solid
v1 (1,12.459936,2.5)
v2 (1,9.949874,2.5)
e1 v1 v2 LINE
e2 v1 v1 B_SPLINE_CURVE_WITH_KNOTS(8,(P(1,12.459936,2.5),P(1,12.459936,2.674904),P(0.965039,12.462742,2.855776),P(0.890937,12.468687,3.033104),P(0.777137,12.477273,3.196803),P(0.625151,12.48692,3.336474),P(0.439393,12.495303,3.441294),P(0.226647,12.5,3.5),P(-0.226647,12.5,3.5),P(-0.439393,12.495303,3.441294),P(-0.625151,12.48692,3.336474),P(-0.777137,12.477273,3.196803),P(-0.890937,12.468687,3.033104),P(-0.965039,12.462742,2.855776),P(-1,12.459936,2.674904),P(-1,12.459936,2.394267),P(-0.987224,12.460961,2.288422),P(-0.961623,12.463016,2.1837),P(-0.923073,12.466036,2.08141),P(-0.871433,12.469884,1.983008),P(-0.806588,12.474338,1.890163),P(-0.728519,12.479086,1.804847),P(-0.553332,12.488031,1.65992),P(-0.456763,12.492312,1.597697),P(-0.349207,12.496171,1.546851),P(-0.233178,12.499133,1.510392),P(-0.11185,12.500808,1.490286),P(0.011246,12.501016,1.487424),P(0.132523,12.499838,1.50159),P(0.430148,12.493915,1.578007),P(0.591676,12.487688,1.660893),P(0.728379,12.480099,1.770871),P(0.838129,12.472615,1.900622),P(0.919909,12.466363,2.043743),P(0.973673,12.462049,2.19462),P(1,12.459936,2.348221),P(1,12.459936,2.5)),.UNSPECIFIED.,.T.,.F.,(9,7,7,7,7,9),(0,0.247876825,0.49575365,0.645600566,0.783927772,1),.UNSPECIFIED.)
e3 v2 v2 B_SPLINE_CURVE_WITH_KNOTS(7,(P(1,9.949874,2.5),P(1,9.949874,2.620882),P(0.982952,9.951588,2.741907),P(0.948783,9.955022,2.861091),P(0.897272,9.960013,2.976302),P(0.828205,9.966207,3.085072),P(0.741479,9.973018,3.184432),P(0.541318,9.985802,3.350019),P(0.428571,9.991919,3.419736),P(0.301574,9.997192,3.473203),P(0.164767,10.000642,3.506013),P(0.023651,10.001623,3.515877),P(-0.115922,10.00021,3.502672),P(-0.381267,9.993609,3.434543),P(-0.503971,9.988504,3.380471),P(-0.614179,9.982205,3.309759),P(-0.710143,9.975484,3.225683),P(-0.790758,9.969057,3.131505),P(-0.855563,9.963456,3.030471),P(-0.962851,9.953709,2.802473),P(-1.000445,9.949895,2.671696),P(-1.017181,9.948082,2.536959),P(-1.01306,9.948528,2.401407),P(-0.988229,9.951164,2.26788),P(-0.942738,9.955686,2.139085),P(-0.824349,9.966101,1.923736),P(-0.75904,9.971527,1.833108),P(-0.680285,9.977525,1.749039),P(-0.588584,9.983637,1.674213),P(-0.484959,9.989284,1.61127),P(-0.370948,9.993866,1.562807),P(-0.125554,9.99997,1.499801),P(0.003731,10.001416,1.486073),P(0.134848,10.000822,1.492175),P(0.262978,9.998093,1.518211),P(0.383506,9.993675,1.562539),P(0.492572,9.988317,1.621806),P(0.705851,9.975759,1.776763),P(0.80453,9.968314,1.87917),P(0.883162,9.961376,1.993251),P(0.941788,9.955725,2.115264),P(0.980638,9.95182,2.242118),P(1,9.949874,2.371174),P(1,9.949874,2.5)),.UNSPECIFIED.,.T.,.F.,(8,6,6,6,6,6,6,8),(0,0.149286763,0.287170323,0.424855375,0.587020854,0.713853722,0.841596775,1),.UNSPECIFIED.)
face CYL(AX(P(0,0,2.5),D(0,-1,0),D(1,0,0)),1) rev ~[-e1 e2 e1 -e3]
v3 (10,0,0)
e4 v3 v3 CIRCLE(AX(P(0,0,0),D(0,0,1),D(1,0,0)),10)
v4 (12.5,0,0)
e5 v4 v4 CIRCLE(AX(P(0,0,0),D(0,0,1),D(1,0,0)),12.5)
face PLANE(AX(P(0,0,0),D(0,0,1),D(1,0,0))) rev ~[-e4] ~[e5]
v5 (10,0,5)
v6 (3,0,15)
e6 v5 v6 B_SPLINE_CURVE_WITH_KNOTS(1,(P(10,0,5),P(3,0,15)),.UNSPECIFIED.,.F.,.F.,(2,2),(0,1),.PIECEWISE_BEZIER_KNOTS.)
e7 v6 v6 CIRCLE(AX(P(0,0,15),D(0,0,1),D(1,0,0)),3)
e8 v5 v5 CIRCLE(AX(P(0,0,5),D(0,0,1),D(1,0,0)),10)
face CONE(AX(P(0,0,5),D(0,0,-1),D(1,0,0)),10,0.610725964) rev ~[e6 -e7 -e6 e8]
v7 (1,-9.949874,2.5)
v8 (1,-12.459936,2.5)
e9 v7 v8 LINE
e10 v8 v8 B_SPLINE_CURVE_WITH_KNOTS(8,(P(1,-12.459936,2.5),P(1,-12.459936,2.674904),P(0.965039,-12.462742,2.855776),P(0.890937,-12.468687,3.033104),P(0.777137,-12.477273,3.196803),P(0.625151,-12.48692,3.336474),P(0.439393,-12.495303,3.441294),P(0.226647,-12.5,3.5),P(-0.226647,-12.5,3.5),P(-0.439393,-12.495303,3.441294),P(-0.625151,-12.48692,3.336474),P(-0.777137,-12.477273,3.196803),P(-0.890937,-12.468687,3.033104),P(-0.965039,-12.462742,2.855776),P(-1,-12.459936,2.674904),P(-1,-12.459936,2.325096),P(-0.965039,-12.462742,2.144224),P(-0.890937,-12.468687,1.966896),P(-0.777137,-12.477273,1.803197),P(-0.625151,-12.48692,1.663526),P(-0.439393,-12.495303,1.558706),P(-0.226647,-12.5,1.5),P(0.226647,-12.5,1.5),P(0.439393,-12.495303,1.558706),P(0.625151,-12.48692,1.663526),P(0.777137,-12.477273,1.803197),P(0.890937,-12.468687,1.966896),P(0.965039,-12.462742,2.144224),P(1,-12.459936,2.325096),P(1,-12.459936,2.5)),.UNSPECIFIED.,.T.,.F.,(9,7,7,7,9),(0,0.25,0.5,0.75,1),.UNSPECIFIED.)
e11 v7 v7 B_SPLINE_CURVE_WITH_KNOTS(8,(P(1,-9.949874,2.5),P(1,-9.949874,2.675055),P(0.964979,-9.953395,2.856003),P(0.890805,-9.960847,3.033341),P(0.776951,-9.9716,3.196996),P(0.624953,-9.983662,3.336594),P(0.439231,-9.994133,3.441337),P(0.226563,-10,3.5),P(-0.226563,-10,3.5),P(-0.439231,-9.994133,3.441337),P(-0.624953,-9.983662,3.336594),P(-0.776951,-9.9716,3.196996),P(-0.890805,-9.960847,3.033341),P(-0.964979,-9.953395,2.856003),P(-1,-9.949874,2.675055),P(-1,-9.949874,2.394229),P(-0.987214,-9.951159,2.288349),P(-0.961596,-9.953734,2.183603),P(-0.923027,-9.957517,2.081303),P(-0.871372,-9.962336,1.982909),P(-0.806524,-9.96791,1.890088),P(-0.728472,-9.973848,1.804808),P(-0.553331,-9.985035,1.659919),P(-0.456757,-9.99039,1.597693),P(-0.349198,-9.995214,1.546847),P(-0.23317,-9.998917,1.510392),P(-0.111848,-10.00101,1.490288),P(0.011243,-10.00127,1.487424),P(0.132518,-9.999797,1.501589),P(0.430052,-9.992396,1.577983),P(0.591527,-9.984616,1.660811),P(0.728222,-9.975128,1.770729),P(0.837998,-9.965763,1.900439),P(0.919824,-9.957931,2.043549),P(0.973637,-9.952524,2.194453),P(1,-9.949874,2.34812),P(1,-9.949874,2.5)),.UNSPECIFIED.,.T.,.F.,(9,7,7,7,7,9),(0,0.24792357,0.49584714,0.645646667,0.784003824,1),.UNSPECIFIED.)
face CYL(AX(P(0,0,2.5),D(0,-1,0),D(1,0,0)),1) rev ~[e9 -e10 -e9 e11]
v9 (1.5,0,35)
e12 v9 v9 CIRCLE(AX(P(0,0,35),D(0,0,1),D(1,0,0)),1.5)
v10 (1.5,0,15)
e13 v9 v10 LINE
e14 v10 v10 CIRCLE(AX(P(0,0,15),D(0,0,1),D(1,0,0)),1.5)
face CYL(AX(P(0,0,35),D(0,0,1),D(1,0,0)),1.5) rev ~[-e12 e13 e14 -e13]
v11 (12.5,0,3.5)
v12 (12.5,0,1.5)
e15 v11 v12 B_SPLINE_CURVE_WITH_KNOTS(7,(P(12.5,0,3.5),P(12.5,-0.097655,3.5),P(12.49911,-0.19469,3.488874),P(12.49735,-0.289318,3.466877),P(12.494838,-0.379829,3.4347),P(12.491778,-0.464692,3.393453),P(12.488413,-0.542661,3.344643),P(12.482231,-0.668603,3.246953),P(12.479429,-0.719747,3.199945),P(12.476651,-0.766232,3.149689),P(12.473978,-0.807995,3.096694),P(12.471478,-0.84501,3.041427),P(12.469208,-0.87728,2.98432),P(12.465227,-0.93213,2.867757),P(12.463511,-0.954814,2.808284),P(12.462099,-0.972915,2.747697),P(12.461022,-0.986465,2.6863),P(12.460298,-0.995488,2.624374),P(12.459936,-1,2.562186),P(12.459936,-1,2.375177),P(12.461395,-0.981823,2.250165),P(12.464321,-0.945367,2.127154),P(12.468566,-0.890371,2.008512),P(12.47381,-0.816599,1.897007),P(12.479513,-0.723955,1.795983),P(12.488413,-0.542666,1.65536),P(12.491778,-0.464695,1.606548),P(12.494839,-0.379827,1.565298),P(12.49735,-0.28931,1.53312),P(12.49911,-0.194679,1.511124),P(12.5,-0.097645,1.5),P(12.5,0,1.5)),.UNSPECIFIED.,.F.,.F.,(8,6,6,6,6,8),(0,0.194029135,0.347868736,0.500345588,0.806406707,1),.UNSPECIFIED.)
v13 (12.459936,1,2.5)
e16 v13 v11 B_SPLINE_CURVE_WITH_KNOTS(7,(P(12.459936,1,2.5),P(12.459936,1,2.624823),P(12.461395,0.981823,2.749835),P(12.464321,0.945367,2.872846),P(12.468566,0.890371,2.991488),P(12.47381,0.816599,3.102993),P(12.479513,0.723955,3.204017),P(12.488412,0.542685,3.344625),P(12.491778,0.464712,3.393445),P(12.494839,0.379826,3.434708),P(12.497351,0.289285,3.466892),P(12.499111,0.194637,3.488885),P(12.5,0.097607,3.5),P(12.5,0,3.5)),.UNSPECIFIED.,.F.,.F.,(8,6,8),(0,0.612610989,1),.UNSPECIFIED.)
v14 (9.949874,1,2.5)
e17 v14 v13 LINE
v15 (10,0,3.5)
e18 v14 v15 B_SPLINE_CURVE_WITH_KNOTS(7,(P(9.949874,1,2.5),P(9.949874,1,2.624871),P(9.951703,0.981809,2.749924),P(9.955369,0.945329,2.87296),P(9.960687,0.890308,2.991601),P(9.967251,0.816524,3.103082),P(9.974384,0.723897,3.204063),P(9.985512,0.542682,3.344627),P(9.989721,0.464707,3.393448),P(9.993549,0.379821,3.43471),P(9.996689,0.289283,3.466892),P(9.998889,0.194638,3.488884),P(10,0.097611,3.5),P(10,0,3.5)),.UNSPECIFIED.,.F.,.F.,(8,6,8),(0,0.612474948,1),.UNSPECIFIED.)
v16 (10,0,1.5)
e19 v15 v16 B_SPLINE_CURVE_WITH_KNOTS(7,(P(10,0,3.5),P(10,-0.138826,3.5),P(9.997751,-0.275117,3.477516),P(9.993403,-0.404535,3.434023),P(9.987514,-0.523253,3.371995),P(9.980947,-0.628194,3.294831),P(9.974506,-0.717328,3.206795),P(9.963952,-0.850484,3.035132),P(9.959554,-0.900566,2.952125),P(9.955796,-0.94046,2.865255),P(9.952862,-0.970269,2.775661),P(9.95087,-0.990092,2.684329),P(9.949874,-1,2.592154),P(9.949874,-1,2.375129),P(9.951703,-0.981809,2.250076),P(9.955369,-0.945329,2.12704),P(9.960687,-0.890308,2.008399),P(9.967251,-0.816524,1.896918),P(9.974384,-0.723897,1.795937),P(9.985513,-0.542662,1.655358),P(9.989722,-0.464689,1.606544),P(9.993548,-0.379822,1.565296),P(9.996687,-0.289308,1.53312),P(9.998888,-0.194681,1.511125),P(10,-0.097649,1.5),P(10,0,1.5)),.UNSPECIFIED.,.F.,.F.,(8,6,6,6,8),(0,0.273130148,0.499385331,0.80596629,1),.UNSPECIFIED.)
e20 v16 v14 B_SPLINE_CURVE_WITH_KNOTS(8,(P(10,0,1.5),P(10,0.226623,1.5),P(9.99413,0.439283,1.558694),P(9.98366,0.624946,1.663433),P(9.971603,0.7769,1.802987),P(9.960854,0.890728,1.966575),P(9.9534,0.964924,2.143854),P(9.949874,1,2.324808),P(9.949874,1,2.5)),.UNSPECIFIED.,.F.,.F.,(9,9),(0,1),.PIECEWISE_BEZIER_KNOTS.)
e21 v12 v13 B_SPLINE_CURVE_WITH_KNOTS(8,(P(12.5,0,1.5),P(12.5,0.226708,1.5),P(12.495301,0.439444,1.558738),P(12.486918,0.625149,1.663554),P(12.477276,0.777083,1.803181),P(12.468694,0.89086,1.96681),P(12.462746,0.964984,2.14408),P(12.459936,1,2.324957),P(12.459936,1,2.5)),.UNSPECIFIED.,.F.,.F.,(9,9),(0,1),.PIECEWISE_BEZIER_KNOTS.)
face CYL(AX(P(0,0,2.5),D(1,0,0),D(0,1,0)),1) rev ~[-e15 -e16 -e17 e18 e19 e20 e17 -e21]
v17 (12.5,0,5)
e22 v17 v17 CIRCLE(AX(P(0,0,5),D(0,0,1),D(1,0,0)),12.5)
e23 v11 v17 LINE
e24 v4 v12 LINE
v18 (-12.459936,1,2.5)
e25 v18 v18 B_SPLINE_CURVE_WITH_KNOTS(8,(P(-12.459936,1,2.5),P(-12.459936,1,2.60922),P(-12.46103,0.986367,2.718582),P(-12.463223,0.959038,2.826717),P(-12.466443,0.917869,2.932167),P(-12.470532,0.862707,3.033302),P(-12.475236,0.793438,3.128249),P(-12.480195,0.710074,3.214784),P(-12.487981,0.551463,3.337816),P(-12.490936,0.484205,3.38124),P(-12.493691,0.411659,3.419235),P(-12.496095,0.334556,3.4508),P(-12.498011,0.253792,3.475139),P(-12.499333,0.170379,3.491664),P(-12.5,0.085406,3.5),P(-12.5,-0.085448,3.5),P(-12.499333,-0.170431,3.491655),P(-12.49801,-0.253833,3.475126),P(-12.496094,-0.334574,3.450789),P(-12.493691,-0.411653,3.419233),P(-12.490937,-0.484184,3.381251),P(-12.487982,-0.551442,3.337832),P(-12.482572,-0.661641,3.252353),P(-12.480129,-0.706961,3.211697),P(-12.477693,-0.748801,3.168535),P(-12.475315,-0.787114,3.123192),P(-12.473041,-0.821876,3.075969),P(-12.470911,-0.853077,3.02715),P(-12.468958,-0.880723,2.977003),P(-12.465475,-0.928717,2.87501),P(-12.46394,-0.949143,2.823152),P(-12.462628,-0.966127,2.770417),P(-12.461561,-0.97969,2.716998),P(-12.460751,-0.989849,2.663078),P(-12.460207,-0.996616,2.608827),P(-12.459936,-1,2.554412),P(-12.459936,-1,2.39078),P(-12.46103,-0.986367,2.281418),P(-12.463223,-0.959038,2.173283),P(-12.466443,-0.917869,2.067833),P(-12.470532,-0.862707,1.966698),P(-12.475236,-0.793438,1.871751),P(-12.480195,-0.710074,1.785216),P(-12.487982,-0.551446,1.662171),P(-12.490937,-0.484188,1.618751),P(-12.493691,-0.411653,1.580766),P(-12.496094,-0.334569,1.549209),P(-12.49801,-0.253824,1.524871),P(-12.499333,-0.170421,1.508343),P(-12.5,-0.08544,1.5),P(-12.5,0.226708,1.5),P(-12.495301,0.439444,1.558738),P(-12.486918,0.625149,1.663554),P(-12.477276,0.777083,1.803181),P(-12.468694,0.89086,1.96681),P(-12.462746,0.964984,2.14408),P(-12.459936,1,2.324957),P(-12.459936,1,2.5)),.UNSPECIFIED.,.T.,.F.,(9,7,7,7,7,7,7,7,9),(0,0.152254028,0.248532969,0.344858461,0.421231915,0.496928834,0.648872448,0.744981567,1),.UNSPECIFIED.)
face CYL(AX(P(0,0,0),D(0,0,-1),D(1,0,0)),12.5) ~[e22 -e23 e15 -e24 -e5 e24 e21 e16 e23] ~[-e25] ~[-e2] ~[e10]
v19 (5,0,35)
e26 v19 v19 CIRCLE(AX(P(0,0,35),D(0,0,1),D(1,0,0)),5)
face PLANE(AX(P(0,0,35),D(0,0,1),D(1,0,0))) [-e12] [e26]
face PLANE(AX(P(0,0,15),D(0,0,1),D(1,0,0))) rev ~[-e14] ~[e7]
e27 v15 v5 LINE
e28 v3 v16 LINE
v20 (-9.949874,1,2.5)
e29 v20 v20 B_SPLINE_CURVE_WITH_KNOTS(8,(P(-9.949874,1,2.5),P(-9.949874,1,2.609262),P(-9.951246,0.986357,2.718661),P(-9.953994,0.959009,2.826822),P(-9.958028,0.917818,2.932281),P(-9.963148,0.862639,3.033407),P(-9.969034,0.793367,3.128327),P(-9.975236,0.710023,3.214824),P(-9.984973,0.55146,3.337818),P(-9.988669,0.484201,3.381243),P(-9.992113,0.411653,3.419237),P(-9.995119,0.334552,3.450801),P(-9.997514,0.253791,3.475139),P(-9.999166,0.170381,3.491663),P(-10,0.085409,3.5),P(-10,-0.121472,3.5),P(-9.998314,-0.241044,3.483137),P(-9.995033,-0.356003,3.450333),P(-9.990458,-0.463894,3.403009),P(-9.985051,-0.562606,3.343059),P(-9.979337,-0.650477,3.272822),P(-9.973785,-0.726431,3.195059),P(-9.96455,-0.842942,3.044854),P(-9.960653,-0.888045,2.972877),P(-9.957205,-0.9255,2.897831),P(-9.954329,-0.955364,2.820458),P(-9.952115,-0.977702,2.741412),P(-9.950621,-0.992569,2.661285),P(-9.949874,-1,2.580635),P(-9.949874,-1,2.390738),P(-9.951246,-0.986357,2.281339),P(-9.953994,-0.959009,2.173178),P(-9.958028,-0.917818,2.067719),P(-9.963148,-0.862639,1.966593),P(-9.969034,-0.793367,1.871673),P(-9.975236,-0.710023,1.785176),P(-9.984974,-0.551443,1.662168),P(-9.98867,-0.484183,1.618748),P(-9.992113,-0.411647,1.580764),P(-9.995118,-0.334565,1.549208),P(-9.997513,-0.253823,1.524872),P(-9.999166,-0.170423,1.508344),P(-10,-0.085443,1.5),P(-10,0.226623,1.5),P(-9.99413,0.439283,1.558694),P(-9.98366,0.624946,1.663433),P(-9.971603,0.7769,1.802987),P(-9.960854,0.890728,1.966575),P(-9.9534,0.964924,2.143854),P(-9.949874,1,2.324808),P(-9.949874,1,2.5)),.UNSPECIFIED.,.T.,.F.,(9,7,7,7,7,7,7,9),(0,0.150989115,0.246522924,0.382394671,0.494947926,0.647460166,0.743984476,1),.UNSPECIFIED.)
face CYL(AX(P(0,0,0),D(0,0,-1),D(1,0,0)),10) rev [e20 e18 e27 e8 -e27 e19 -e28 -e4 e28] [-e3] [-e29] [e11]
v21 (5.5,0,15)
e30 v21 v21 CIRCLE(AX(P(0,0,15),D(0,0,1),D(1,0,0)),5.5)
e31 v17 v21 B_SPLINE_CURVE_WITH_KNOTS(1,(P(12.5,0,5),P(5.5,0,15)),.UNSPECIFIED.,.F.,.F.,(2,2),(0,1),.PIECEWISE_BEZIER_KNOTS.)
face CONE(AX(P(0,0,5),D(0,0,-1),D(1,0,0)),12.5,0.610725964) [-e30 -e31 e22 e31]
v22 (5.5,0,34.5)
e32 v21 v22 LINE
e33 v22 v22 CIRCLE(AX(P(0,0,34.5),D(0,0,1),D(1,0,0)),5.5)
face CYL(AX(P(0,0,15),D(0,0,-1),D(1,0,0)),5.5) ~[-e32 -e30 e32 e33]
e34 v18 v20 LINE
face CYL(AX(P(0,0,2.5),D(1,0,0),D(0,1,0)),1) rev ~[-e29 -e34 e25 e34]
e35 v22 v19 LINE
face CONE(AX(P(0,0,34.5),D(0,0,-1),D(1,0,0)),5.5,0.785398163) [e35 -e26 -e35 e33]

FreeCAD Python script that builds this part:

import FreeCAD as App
import Part
import Sketcher

V = App.Vector


def edges_at(feature, points):
    """Names of the edges that pass closest to the given points."""
    edges = feature.Shape.Edges
    near = lambda p: min(range(len(edges)), key=lambda i: edges[i].distToShape(Part.Vertex(*p))[0])
    return sorted({f"Edge{near(p) + 1}" for p in points})

doc = App.newDocument("Part")
body = doc.addObject("PartDesign::Body", "Body")

# Sketch on XY plane
sketch1 = body.newObject("Sketcher::SketchObject", "Sketch")
sketch1.AttachmentSupport = (doc.getObject("XY_Plane"), [""])
sketch1.MapMode = "FlatFace"
sketch1.addGeometry([
    Part.Circle(V(0, 0, 0), V(0, 0, 1), 12),
    Part.Circle(V(0, 0, 0), V(0, 0, 1), 10),
], False)
sketch1.addConstraint([
    Sketcher.Constraint("Coincident", 0, 3, -1, 1),
    Sketcher.Constraint("Coincident", 1, 3, -1, 1),
    Sketcher.Constraint("Diameter", 0, 25.0),
    Sketcher.Constraint("Diameter", 1, 20.0),
])
pad1 = body.newObject("PartDesign::Pad", "Pad")
pad1.Profile = sketch1
pad1.Length = 5

# Sketch on XY plane
sketch2 = body.newObject("Sketcher::SketchObject", "Sketch001")
sketch2.AttachmentSupport = (doc.getObject("XY_Plane"), [""])
sketch2.MapMode = "FlatFace"
sketch2.AttachmentOffset = App.Placement(V(0, 0, 5), App.Rotation())
sketch2.addGeometry(Part.Circle(V(0, 0, 0), V(0, 0, 1), 12), False)
sketch2.addConstraint([
    Sketcher.Constraint("Coincident", 0, 3, -1, 1),
    Sketcher.Constraint("Diameter", 0, 25.0),
])

# Sketch on XY plane
sketch3 = body.newObject("Sketcher::SketchObject", "Sketch002")
sketch3.AttachmentSupport = (doc.getObject("XY_Plane"), [""])
sketch3.MapMode = "FlatFace"
sketch3.AttachmentOffset = App.Placement(V(0, 0, 15), App.Rotation())
sketch3.addGeometry(Part.Circle(V(0, 0, 0), V(0, 0, 1), 6), False)
sketch3.addConstraint([
    Sketcher.Constraint("Coincident", 0, 3, -1, 1),
    Sketcher.Constraint("Diameter", 0, 11.0),
])

additiveloft = body.newObject("PartDesign::AdditiveLoft", "AdditiveLoft")
additiveloft.Profile = sketch2
additiveloft.Sections = [sketch3]

# Sketch on XY plane
sketch4 = body.newObject("Sketcher::SketchObject", "Sketch003")
sketch4.AttachmentSupport = (doc.getObject("XY_Plane"), [""])
sketch4.MapMode = "FlatFace"
sketch4.AttachmentOffset = App.Placement(V(0, 0, 5), App.Rotation())
sketch4.addGeometry(Part.Circle(V(0, 0, 0), V(0, 0, 1), 10), False)
sketch4.addConstraint([
    Sketcher.Constraint("Coincident", 0, 3, -1, 1),
    Sketcher.Constraint("Diameter", 0, 20.0),
])

# Sketch on XY plane
sketch5 = body.newObject("Sketcher::SketchObject", "Sketch004")
sketch5.AttachmentSupport = (doc.getObject("XY_Plane"), [""])
sketch5.MapMode = "FlatFace"
sketch5.AttachmentOffset = App.Placement(V(0, 0, 15), App.Rotation())
sketch5.addGeometry(Part.Circle(V(0, 0, 0), V(0, 0, 1), 3), False)
sketch5.addConstraint([
    Sketcher.Constraint("Coincident", 0, 3, -1, 1),
    Sketcher.Constraint("Diameter", 0, 6.0),
])

subtractiveloft = body.newObject("PartDesign::SubtractiveLoft", "SubtractiveLoft")
subtractiveloft.Profile = sketch4
subtractiveloft.Sections = [sketch5]

# Sketch on XY plane
sketch6 = body.newObject("Sketcher::SketchObject", "Sketch005")
sketch6.AttachmentSupport = (doc.getObject("XY_Plane"), [""])
sketch6.MapMode = "FlatFace"
sketch6.AttachmentOffset = App.Placement(V(0, 0, 15), App.Rotation())
sketch6.addGeometry(Part.Circle(V(0, 0, 0), V(0, 0, 1), 6), False)
sketch6.addConstraint([
    Sketcher.Constraint("Coincident", 0, 3, -1, 1),
    Sketcher.Constraint("Diameter", 0, 11.0),
])
pad2 = body.newObject("PartDesign::Pad", "Pad001")
pad2.Profile = sketch6
pad2.Length = 20
doc.recompute()

chamfer = body.newObject("PartDesign::Chamfer", "Chamfer")
chamfer.Base = (pad2, edges_at(pad2, [(-5.5, 0, 35)]))
chamfer.Size = 0.5

# Sketch on YZ plane
sketch7 = body.newObject("Sketcher::SketchObject", "Sketch006")
sketch7.AttachmentSupport = (doc.getObject("YZ_Plane"), [""])
sketch7.MapMode = "FlatFace"
sketch7.addGeometry(Part.Circle(V(0, 2.5, 0), V(0, 0, 1), 1), False)
sketch7.addConstraint([
    Sketcher.Constraint("PointOnObject", 0, 3, -2),
    Sketcher.Constraint("Diameter", 0, 2.0),
    Sketcher.Constraint("DistanceY", -1, 1, 0, 3, 2.5),
])
pocket1 = body.newObject("PartDesign::Pocket", "Pocket")
pocket1.Profile = sketch7
pocket1.Length = 50
pocket1.Midplane = True

# Sketch on XZ plane
sketch8 = body.newObject("Sketcher::SketchObject", "Sketch007")
sketch8.AttachmentSupport = (doc.getObject("XZ_Plane"), [""])
sketch8.MapMode = "FlatFace"
sketch8.addGeometry(Part.Circle(V(0, 2.5, 0), V(0, 0, 1), 1), False)
sketch8.addConstraint([
    Sketcher.Constraint("PointOnObject", 0, 3, -2),
    Sketcher.Constraint("Diameter", 0, 2.0),
    Sketcher.Constraint("DistanceY", -1, 1, 0, 3, 2.5),
])
pocket2 = body.newObject("PartDesign::Pocket", "Pocket001")
pocket2.Profile = sketch8
pocket2.Length = 50
pocket2.Midplane = True

# Sketch on XY plane
sketch9 = body.newObject("Sketcher::SketchObject", "Sketch008")
sketch9.AttachmentSupport = (doc.getObject("XY_Plane"), [""])
sketch9.MapMode = "FlatFace"
sketch9.AttachmentOffset = App.Placement(V(0, 0, 35), App.Rotation())
sketch9.addGeometry(Part.Circle(V(0, 0, 0), V(0, 0, 1), 1.5), False)
sketch9.addConstraint([
    Sketcher.Constraint("Coincident", 0, 3, -1, 1),
    Sketcher.Constraint("Diameter", 0, 3.0),
])
pocket3 = body.newObject("PartDesign::Pocket", "Pocket002")
pocket3.Profile = sketch9
pocket3.Type = "ThroughAll"

doc.recompute()
